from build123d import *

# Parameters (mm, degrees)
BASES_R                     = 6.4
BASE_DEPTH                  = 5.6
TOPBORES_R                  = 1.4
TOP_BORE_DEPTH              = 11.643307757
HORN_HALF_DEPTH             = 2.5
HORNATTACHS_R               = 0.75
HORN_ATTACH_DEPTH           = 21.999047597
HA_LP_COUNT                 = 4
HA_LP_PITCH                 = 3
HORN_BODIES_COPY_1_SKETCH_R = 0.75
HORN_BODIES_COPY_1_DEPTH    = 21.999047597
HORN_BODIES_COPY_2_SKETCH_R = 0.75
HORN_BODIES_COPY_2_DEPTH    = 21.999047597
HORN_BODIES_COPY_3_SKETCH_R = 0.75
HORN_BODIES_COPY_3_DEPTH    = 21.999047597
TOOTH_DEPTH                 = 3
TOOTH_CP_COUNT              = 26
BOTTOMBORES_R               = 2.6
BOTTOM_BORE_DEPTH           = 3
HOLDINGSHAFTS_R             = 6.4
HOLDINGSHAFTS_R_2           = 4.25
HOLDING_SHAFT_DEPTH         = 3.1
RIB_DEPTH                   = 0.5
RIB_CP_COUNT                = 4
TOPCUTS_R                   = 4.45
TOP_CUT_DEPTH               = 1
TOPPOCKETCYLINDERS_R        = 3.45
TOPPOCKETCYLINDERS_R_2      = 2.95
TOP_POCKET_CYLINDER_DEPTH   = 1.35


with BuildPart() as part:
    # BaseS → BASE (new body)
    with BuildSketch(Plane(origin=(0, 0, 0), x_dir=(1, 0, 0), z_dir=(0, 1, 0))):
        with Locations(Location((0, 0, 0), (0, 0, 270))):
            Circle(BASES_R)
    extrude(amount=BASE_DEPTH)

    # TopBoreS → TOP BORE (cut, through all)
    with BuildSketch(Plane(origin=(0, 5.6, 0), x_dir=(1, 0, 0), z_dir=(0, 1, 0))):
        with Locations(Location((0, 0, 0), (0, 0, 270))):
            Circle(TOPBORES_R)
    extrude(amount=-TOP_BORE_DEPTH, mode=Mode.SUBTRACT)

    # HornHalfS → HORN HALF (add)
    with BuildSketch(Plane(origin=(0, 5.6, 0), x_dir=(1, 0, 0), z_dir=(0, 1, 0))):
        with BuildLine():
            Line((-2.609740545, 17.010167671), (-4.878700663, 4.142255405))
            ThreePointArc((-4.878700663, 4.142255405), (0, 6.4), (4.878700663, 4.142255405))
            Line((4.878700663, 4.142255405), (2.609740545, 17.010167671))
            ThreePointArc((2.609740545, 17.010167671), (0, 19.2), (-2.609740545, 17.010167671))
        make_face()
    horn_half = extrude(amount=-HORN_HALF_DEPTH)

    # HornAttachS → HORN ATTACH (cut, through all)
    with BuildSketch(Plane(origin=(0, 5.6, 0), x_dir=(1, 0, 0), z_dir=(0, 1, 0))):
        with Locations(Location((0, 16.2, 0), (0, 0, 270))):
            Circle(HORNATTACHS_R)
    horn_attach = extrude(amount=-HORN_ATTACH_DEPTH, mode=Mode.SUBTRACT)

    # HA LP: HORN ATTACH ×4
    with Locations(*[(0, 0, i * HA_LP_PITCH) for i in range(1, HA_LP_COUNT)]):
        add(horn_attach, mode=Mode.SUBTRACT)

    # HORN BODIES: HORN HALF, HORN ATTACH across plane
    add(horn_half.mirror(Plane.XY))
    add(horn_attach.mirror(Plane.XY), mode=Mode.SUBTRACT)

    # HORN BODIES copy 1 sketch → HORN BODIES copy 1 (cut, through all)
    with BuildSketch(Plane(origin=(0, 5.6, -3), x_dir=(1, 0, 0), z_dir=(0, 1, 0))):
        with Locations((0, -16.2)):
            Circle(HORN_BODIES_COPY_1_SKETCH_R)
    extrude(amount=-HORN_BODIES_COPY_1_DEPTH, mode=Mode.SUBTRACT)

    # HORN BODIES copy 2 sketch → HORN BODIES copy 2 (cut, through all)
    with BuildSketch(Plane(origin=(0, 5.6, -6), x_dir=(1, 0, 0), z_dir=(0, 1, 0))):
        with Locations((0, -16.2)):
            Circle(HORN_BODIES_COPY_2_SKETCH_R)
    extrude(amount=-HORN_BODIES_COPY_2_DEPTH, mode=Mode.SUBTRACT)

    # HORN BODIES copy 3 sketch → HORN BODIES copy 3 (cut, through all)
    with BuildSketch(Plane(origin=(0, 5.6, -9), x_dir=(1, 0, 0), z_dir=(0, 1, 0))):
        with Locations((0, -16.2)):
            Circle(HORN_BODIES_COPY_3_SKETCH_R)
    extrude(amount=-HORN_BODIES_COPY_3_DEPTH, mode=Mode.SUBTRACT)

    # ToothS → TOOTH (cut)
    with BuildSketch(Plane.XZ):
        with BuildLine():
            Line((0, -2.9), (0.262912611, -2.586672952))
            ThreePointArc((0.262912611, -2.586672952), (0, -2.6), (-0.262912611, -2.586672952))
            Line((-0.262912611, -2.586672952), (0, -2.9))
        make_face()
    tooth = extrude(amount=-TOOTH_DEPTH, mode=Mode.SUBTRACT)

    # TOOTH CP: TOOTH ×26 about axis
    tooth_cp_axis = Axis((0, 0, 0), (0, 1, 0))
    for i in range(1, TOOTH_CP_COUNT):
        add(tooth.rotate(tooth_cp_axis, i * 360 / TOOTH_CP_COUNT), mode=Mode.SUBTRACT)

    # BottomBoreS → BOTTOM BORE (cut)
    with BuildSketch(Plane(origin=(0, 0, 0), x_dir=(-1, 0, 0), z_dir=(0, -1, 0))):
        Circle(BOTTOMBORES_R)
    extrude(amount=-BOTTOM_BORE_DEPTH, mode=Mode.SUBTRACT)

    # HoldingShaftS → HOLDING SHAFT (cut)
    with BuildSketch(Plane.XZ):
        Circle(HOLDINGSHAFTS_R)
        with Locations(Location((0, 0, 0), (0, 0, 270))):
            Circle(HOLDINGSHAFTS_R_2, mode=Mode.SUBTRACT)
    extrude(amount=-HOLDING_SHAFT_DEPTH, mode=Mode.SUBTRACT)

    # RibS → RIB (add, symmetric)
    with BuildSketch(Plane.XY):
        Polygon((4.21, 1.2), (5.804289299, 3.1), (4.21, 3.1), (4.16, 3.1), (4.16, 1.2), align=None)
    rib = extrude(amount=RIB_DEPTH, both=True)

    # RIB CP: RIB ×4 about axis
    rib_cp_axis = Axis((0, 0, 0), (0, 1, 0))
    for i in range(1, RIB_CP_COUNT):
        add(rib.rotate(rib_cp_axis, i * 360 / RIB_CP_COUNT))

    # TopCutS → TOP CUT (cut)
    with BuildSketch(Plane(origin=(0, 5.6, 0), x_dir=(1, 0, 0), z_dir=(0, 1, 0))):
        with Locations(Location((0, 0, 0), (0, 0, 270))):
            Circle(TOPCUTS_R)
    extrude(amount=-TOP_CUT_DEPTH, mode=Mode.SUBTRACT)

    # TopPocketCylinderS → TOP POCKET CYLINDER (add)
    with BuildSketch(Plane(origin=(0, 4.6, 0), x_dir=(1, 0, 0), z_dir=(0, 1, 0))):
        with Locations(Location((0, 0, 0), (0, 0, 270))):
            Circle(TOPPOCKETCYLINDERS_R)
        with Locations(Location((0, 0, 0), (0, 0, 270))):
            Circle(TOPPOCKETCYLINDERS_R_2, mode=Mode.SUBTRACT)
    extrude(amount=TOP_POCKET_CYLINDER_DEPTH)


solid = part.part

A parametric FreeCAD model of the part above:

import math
import FreeCAD as App
import Part
import Sketcher
Q = App.Units.Quantity


def add_polygon(sketch, points):
    """Adds a closed chain of lines whose ends are joined by coincident constraints."""
    first, n = sketch.GeometryCount, len(points)
    for a, b in zip(points, points[1:] + points[:1]):
        sketch.addGeometry(Part.LineSegment(App.Vector(*a, 0), App.Vector(*b, 0)), False)
    for i in range(n):
        sketch.addConstraint(Sketcher.Constraint("Coincident", first + i, 2, first + (i + 1) % n, 1))

doc = App.newDocument("Part")
body = doc.addObject("PartDesign::Body", "Body")

# Sketch on XZ plane
sketch1 = body.newObject("Sketcher::SketchObject", "Sketch")
sketch1.AttachmentSupport = (doc.getObject("XZ_Plane"), [""])
sketch1.MapMode = "FlatFace"
sketch1.addGeometry(Part.Circle(App.Vector(0, 0, 0), App.Vector(0, 0, 1), 6), False)
sketch1.addConstraint([
    Sketcher.Constraint("Coincident", 0, 3, -1, 1),
    Sketcher.Constraint("Diameter", 0, Q("12.8 mm")),
])
pad1 = body.newObject("PartDesign::Pad", "Pad")
pad1.Profile = sketch1
pad1.Length = 5.6
pad1.Reversed = True

# Sketch on XZ plane
sketch2 = body.newObject("Sketcher::SketchObject", "Sketch001")
sketch2.AttachmentSupport = (doc.getObject("XZ_Plane"), [""])
sketch2.MapMode = "FlatFace"
sketch2.AttachmentOffset = App.Placement(App.Vector(0, 0, -5.6), App.Rotation())
sketch2.addGeometry(Part.Circle(App.Vector(0, 0, 0), App.Vector(0, 0, 1), 1.4), False)
sketch2.addConstraint([
    Sketcher.Constraint("Coincident", 0, 3, -1, 1),
    Sketcher.Constraint("Diameter", 0, Q("2.8 mm")),
])
pocket1 = body.newObject("PartDesign::Pocket", "Pocket")
pocket1.Profile = sketch2
pocket1.Type = "ThroughAll"
pocket1.Reversed = True

# Sketch on XZ plane
sketch3 = body.newObject("Sketcher::SketchObject", "Sketch002")
sketch3.AttachmentSupport = (doc.getObject("XZ_Plane"), [""])
sketch3.MapMode = "FlatFace"
sketch3.AttachmentOffset = App.Placement(App.Vector(0, 0, -5.6), App.Rotation())
sketch3.addGeometry([
    Part.LineSegment(App.Vector(-2.6, -17, 0), App.Vector(-4.9, -4.1, 0)),
    Part.ArcOfCircle(Part.Circle(App.Vector(0, 0, 0), App.Vector(0, 0, 1), 6.4), math.radians(-140), math.radians(-40)),
    Part.LineSegment(App.Vector(4.9, -4.1, 0), App.Vector(2.6, -17, 0)),
    Part.ArcOfCircle(Part.Circle(App.Vector(0, -16.6, 0), App.Vector(0, 0, 1), 2.6), math.radians(-170), math.radians(-10)),
], False)
sketch3.addConstraint([
    Sketcher.Constraint("Coincident", 0, 2, 1, 1),
    Sketcher.Constraint("Coincident", 1, 2, 2, 1),
    Sketcher.Constraint("Tangent", 2, 2, 3, 2),
    Sketcher.Constraint("Tangent", 3, 1, 0, 1),
    Sketcher.Constraint("Coincident", 1, 3, -1, 1),
    Sketcher.Constraint("Symmetric", 2, 2, 3, 1, -2),
    Sketcher.Constraint("Radius", 1, Q("6.4 mm")),
    Sketcher.Constraint("Angle", 0, Q("100 deg")),
    Sketcher.Constraint("Radius", 3, Q("2.65 mm")),
    Sketcher.Constraint("DistanceY", 3, 3, -1, 1, Q("16.55 mm")),
])
pad2 = body.newObject("PartDesign::Pad", "Pad001")
pad2.Profile = sketch3
pad2.Length = 2.5

# Sketch on XZ plane
sketch4 = body.newObject("Sketcher::SketchObject", "Sketch003")
sketch4.AttachmentSupport = (doc.getObject("XZ_Plane"), [""])
sketch4.MapMode = "FlatFace"
sketch4.AttachmentOffset = App.Placement(App.Vector(0, 0, -5.6), App.Rotation())
sketch4.addGeometry(Part.Circle(App.Vector(0, -16.2, 0), App.Vector(0, 0, 1), 0.8), False)
sketch4.addConstraint([
    Sketcher.Constraint("PointOnObject", 0, 3, -2),
    Sketcher.Constraint("Diameter", 0, Q("1.5 mm")),
    Sketcher.Constraint("DistanceY", 0, 3, -1, 1, Q("16.2 mm")),
])
pocket2 = body.newObject("PartDesign::Pocket", "Pocket001")
pocket2.Profile = sketch4
pocket2.Type = "ThroughAll"
pocket2.Reversed = True
doc.recompute()

linearpattern = body.newObject("PartDesign::LinearPattern", "LinearPattern")
linearpattern.Originals = [pocket2]
linearpattern.Direction = (doc.getObject("Z_Axis"), [""])
linearpattern.Mode = "offset"
linearpattern.Offset = 3
linearpattern.Occurrences = 4
body.Tip = linearpattern
doc.recompute()

mirrored = body.newObject("PartDesign::Mirrored", "Mirrored")
mirrored.Originals = [pad2, pocket2]
mirrored.MirrorPlane = (doc.getObject("XY_Plane"), [""])
body.Tip = mirrored

# Sketch on XZ plane
sketch5 = body.newObject("Sketcher::SketchObject", "Sketch004")
sketch5.AttachmentSupport = (doc.getObject("XZ_Plane"), [""])
sketch5.MapMode = "FlatFace"
sketch5.AttachmentOffset = App.Placement(App.Vector(0, 0, -5.6), App.Rotation())
sketch5.addGeometry(Part.Circle(App.Vector(0, 13.2, 0), App.Vector(0, 0, 1), 0.8), False)
sketch5.addConstraint([
    Sketcher.Constraint("PointOnObject", 0, 3, -2),
    Sketcher.Constraint("Diameter", 0, Q("1.5 mm")),
    Sketcher.Constraint("DistanceY", -1, 1, 0, 3, Q("13.2 mm")),
])
pocket3 = body.newObject("PartDesign::Pocket", "Pocket002")
pocket3.Profile = sketch5
pocket3.Type = "ThroughAll"
pocket3.Reversed = True

# Sketch on XZ plane
sketch6 = body.newObject("Sketcher::SketchObject", "Sketch005")
sketch6.AttachmentSupport = (doc.getObject("XZ_Plane"), [""])
sketch6.MapMode = "FlatFace"
sketch6.AttachmentOffset = App.Placement(App.Vector(0, 0, -5.6), App.Rotation())
sketch6.addGeometry(Part.Circle(App.Vector(0, 10.2, 0), App.Vector(0, 0, 1), 0.8), False)
sketch6.addConstraint([
    Sketcher.Constraint("PointOnObject", 0, 3, -2),
    Sketcher.Constraint("Diameter", 0, Q("1.5 mm")),
    Sketcher.Constraint("DistanceY", -1, 1, 0, 3, Q("10.2 mm")),
])
pocket4 = body.newObject("PartDesign::Pocket", "Pocket003")
pocket4.Profile = sketch6
pocket4.Type = "ThroughAll"
pocket4.Reversed = True

# Sketch on XZ plane
sketch7 = body.newObject("Sketcher::SketchObject", "Sketch006")
sketch7.AttachmentSupport = (doc.getObject("XZ_Plane"), [""])
sketch7.MapMode = "FlatFace"
sketch7.AttachmentOffset = App.Placement(App.Vector(0, 0, -5.6), App.Rotation())
sketch7.addGeometry(Part.Circle(App.Vector(0, 7.2, 0), App.Vector(0, 0, 1), 0.8), False)
sketch7.addConstraint([
    Sketcher.Constraint("PointOnObject", 0, 3, -2),
    Sketcher.Constraint("Diameter", 0, Q("1.5 mm")),
    Sketcher.Constraint("DistanceY", -1, 1, 0, 3, Q("7.2 mm")),
])
pocket5 = body.newObject("PartDesign::Pocket", "Pocket004")
pocket5.Profile = sketch7
pocket5.Type = "ThroughAll"
pocket5.Reversed = True

# Sketch on XZ plane
sketch8 = body.newObject("Sketcher::SketchObject", "Sketch007")
sketch8.AttachmentSupport = (doc.getObject("XZ_Plane"), [""])
sketch8.MapMode = "FlatFace"
sketch8.addGeometry([
    Part.LineSegment(App.Vector(0, -2.9, 0), App.Vector(0.26, -2.59, 0)),
    Part.ArcOfCircle(Part.Circle(App.Vector(0, 0, 0), App.Vector(0, 0, 1), 2.6), math.radians(-95.8), math.radians(-84.2)),
    Part.LineSegment(App.Vector(-0.26, -2.59, 0), App.Vector(0, -2.9, 0)),
], False)
sketch8.addConstraint([
    Sketcher.Constraint("Coincident", 0, 2, 1, 2),
    Sketcher.Constraint("Coincident", 1, 1, 2, 1),
    Sketcher.Constraint("Coincident", 2, 2, 0, 1),
    Sketcher.Constraint("Coincident", 1, 3, -1, 1),
    Sketcher.Constraint("PointOnObject", 2, 2, -2),
    Sketcher.Constraint("Horizontal", 0, 2, 1, 1),
    Sketcher.Constraint("Radius", 1, Q("2.6 mm")),
    Sketcher.Constraint("Angle", 0, Q("50 deg")),
    Sketcher.Constraint("DistanceY", 2, 2, -1, 1, Q("2.9 mm")),
])
pocket6 = body.newObject("PartDesign::Pocket", "Pocket005")
pocket6.Profile = sketch8
pocket6.Length = 3
doc.recompute()

polarpattern = body.newObject("PartDesign::PolarPattern", "PolarPattern")
polarpattern.Originals = [pocket6]
polarpattern.Axis = (doc.getObject("Y_Axis"), [""])
polarpattern.Angle = 360
polarpattern.Occurrences = 26
body.Tip = polarpattern

# Sketch on XZ plane
sketch9 = body.newObject("Sketcher::SketchObject", "Sketch008")
sketch9.AttachmentSupport = (doc.getObject("XZ_Plane"), [""])
sketch9.MapMode = "FlatFace"
sketch9.addGeometry(Part.Circle(App.Vector(0, 0, 0), App.Vector(0, 0, 1), 2.6), False)
sketch9.addConstraint([
    Sketcher.Constraint("Coincident", 0, 3, -1, 1),
    Sketcher.Constraint("Diameter", 0, Q("5.2 mm")),
])
pocket7 = body.newObject("PartDesign::Pocket", "Pocket006")
pocket7.Profile = sketch9
pocket7.Length = 3

# Sketch on XZ plane
sketch10 = body.newObject("Sketcher::SketchObject", "Sketch009")
sketch10.AttachmentSupport = (doc.getObject("XZ_Plane"), [""])
sketch10.MapMode = "FlatFace"
sketch10.addGeometry([
    Part.Circle(App.Vector(0, 0, 0), App.Vector(0, 0, 1), 6.4),
    Part.Circle(App.Vector(0, 0, 0), App.Vector(0, 0, 1), 4.2),
], False)
sketch10.addConstraint([
    Sketcher.Constraint("Coincident", 0, 3, -1, 1),
    Sketcher.Constraint("Coincident", 1, 3, -1, 1),
    Sketcher.Constraint("Diameter", 0, Q("12.8 mm")),
    Sketcher.Constraint("Diameter", 1, Q("8.5 mm")),
])
pocket8 = body.newObject("PartDesign::Pocket", "Pocket007")
pocket8.Profile = sketch10
pocket8.Length = 3.1

# Sketch on XY plane
sketch11 = body.newObject("Sketcher::SketchObject", "Sketch010")
sketch11.AttachmentSupport = (doc.getObject("XY_Plane"), [""])
sketch11.MapMode = "FlatFace"
add_polygon(sketch11, [(4.21, 1.2), (5.804, 3.1), (4.16, 3.1), (4.16, 1.2)])  # lines 0-3
sketch11.addConstraint([
    Sketcher.Constraint("Horizontal", 1),
    Sketcher.Constraint("Vertical", 2),
    Sketcher.Constraint("Horizontal", 3),
    Sketcher.Constraint("Angle", 0, Q("50 deg")),
    Sketcher.Constraint("DistanceY", 2, 2, 2, 1, Q("1.9 mm")),
    Sketcher.Constraint("DistanceX", 3, 1, 3, 2, Q("0.05 mm")),
    Sketcher.Constraint("DistanceY", -1, 1, 0, 2, Q("3.1 mm")),
    Sketcher.Constraint("DistanceX", -1, 1, 1, 2, Q("4.16 mm")),
])
pad3 = body.newObject("PartDesign::Pad", "Pad002")
pad3.Profile = sketch11
pad3.Length = 1
pad3.Midplane = True
doc.recompute()

polarpattern2 = body.newObject("PartDesign::PolarPattern", "PolarPattern001")
polarpattern2.Originals = [pad3]
polarpattern2.Axis = (doc.getObject("Y_Axis"), [""])
polarpattern2.Angle = 360
polarpattern2.Occurrences = 4
body.Tip = polarpattern2

# Sketch on XZ plane
sketch12 = body.newObject("Sketcher::SketchObject", "Sketch011")
sketch12.AttachmentSupport = (doc.getObject("XZ_Plane"), [""])
sketch12.MapMode = "FlatFace"
sketch12.AttachmentOffset = App.Placement(App.Vector(0, 0, -5.6), App.Rotation())
sketch12.addGeometry(Part.Circle(App.Vector(0, 0, 0), App.Vector(0, 0, 1), 4.5), False)
sketch12.addConstraint([
    Sketcher.Constraint("Coincident", 0, 3, -1, 1),
    Sketcher.Constraint("Diameter", 0, Q("8.9 mm")),
])
pocket9 = body.newObject("PartDesign::Pocket", "Pocket008")
pocket9.Profile = sketch12
pocket9.Length = 1
pocket9.Reversed = True

# Sketch on XZ plane
sketch13 = body.newObject("Sketcher::SketchObject", "Sketch012")
sketch13.AttachmentSupport = (doc.getObject("XZ_Plane"), [""])
sketch13.MapMode = "FlatFace"
sketch13.AttachmentOffset = App.Placement(App.Vector(0, 0, -4.6), App.Rotation())
sketch13.addGeometry([
    Part.Circle(App.Vector(0, 0, 0), App.Vector(0, 0, 1), 3.5),
    Part.Circle(App.Vector(0, 0, 0), App.Vector(0, 0, 1), 3),
], False)
sketch13.addConstraint([
    Sketcher.Constraint("Coincident", 0, 3, -1, 1),
    Sketcher.Constraint("Coincident", 1, 3, -1, 1),
    Sketcher.Constraint("Diameter", 0, Q("6.9 mm")),
    Sketcher.Constraint("Diameter", 1, Q("5.9 mm")),
])
pad4 = body.newObject("PartDesign::Pad", "Pad003")
pad4.Profile = sketch13
pad4.Length = 1.35
pad4.Reversed = True

doc.recompute()
